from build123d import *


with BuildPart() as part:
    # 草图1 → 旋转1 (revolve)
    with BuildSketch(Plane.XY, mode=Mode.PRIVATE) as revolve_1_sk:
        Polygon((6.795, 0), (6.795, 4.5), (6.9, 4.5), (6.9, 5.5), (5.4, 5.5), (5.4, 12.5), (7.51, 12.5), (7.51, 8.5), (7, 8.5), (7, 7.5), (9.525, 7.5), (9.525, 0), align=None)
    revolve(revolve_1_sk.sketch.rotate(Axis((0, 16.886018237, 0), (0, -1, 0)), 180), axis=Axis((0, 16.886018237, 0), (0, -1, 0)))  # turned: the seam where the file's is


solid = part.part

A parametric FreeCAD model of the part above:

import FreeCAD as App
import Part
import Sketcher
from FreeCAD import Vector

doc = App.newDocument("Part")
params = doc.addObject("Spreadsheet::Sheet", "Params")
for row, (alias, value) in enumerate([
    ("sketch1_height", "1 mm"),
    ("sketch1_height2", "4 mm"),
    ("sketch1_height3", "7 mm"),
    ("sketch1_width", "1.5 mm"),
    ("sketch1_height4", "4.5 mm"),
    ("revolution_angle", "360 deg"),
], start=1):
    params.set(f"A{row}", alias)
    params.set(f"B{row}", "=" + value)
    params.setAlias(f"B{row}", alias)

body = doc.addObject("PartDesign::Body", "Body")

# Sketch on XY plane
sketch1 = body.newObject("Sketcher::SketchObject", "Sketch")
sketch1.AttachmentSupport = (doc.getObject("XY_Plane"), [""])
sketch1.MapMode = "FlatFace"
sketch1.addGeometry([
    Part.LineSegment(Vector(6.79, 4.5, 0), Vector(6.79, 0, 0)),  # 0
    Part.LineSegment(Vector(6.79, 0, 0), Vector(9.53, 0, 0)),  # 1
    Part.LineSegment(Vector(9.53, 0, 0), Vector(9.53, 7.5, 0)),  # 2
    Part.LineSegment(Vector(9.53, 7.5, 0), Vector(7, 7.5, 0)),  # 3
    Part.LineSegment(Vector(7, 7.5, 0), Vector(7, 8.5, 0)),  # 4
    Part.LineSegment(Vector(7, 8.5, 0), Vector(7.51, 8.5, 0)),  # 5
    Part.LineSegment(Vector(7.51, 8.5, 0), Vector(7.51, 12.5, 0)),  # 6
    Part.LineSegment(Vector(7.51, 12.5, 0), Vector(5.4, 12.5, 0)),  # 7
    Part.LineSegment(Vector(5.4, 12.5, 0), Vector(5.4, 5.5, 0)),  # 8
    Part.LineSegment(Vector(5.4, 5.5, 0), Vector(6.9, 5.5, 0)),  # 9
    Part.LineSegment(Vector(6.9, 5.5, 0), Vector(6.9, 4.5, 0)),  # 10
    Part.LineSegment(Vector(6.9, 4.5, 0), Vector(6.79, 4.5, 0)),  # 11
], False)
sketch1.addConstraint([
    Sketcher.Constraint("Coincident", 0, 2, 1, 1),
    Sketcher.Constraint("Coincident", 1, 2, 2, 1),
    Sketcher.Constraint("Coincident", 2, 2, 3, 1),
    Sketcher.Constraint("Coincident", 3, 2, 4, 1),
    Sketcher.Constraint("Coincident", 4, 2, 5, 1),
    Sketcher.Constraint("Coincident", 5, 2, 6, 1),
    Sketcher.Constraint("Coincident", 6, 2, 7, 1),
    Sketcher.Constraint("Coincident", 7, 2, 8, 1),
    Sketcher.Constraint("Coincident", 8, 2, 9, 1),
    Sketcher.Constraint("Coincident", 9, 2, 10, 1),
    Sketcher.Constraint("Coincident", 10, 2, 11, 1),
    Sketcher.Constraint("Coincident", 11, 2, 0, 1),
    Sketcher.Constraint("Vertical", 0),
    Sketcher.Constraint("Horizontal", 1),
    Sketcher.Constraint("Vertical", 2),
    Sketcher.Constraint("Horizontal", 3),
    Sketcher.Constraint("Vertical", 4),
    Sketcher.Constraint("Horizontal", 5),
    Sketcher.Constraint("Vertical", 6),
    Sketcher.Constraint("Horizontal", 7),
    Sketcher.Constraint("Vertical", 8),
    Sketcher.Constraint("Horizontal", 9),
    Sketcher.Constraint("Vertical", 10),
    Sketcher.Constraint("Horizontal", 11),
    Sketcher.Constraint("PointOnObject", 0, 2, -1),
    Sketcher.Constraint("Equal", 4, 10),
    Sketcher.Constraint("DistanceY", 4, 1, 4, 2, 1.0),
    Sketcher.Constraint("DistanceY", 6, 1, 6, 2, 4.0),
    Sketcher.Constraint("DistanceY", 8, 2, 8, 1, 7.0),
    Sketcher.Constraint("DistanceX", 9, 1, 9, 2, 1.5),
    Sketcher.Constraint("DistanceY", 0, 2, 0, 1, 4.5),
    Sketcher.Constraint("DistanceX", -1, 1, 3, 2, 7.0),
    Sketcher.Constraint("DistanceX", 1, 1, 1, 2, 2.73),
    Sketcher.Constraint("DistanceX", 5, 1, 5, 2, 0.51),
    Sketcher.Constraint("DistanceX", 7, 2, 7, 1, 2.11),
    Sketcher.Constraint("DistanceX", 3, 2, 3, 1, 2.525),
])
sketch1.setExpression("Constraints[26]", "Params.sketch1_height")
sketch1.setExpression("Constraints[27]", "Params.sketch1_height2")
sketch1.setExpression("Constraints[28]", "Params.sketch1_height3")
sketch1.setExpression("Constraints[29]", "Params.sketch1_width")
sketch1.setExpression("Constraints[30]", "Params.sketch1_height4")
revolution = body.newObject("PartDesign::Revolution", "Revolution")
revolution.Profile = sketch1
revolution.ReferenceAxis = (sketch1, ["V_Axis"])
revolution.setExpression("Angle", "Params.revolution_angle")

doc.recompute()
